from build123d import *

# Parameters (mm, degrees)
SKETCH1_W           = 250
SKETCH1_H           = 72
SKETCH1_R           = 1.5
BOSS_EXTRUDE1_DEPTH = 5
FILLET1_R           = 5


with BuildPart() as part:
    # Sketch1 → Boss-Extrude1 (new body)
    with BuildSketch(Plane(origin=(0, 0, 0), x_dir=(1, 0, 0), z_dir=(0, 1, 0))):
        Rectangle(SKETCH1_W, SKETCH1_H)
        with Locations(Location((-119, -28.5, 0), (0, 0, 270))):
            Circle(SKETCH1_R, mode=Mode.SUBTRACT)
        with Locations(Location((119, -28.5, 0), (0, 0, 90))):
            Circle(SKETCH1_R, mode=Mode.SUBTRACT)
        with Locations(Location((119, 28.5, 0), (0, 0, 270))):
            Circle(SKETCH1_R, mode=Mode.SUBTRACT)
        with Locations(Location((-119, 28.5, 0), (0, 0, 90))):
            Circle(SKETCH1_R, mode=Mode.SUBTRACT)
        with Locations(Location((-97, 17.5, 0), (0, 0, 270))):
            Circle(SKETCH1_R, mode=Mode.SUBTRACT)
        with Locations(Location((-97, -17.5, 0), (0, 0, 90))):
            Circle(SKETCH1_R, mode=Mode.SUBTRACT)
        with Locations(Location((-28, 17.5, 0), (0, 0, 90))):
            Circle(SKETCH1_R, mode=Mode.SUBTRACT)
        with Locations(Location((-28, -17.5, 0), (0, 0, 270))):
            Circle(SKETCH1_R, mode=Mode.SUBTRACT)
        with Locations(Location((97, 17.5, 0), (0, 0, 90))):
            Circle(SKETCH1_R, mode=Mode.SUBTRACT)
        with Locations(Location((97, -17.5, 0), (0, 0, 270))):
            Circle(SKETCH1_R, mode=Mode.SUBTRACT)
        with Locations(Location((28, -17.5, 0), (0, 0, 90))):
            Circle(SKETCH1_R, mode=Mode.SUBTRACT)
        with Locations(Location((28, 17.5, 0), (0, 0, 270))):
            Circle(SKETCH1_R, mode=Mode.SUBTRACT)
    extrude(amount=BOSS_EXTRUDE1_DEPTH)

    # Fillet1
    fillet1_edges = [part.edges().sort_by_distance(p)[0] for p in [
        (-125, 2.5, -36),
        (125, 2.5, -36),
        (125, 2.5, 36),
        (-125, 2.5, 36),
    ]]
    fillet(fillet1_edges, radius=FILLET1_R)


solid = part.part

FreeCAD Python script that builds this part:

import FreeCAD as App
import Part
import Sketcher
Q = App.Units.Quantity


def edges_at(feature, points):
    """Names of the edges that pass closest to the given points."""
    edges = feature.Shape.Edges
    near = lambda p: min(range(len(edges)), key=lambda i: edges[i].distToShape(Part.Vertex(*p))[0])
    return sorted({f"Edge{near(p) + 1}" for p in points})


def add_polygon(sketch, points):
    """Adds a closed chain of lines whose ends are joined by coincident constraints."""
    first, n = sketch.GeometryCount, len(points)
    for a, b in zip(points, points[1:] + points[:1]):
        sketch.addGeometry(Part.LineSegment(App.Vector(*a, 0), App.Vector(*b, 0)), False)
    for i in range(n):
        sketch.addConstraint(Sketcher.Constraint("Coincident", first + i, 2, first + (i + 1) % n, 1))

doc = App.newDocument("Part")
body = doc.addObject("PartDesign::Body", "Body")

# Sketch on XZ plane
sketch1 = body.newObject("Sketcher::SketchObject", "Sketch")
sketch1.AttachmentSupport = (doc.getObject("XZ_Plane"), [""])
sketch1.MapMode = "FlatFace"
add_polygon(sketch1, [(-125, -36), (-125, 36), (125, 36), (125, -36)])  # lines 0-3
sketch1.addGeometry(Part.Circle(App.Vector(-119, 28.5, 0), App.Vector(0, 0, 1), 1.5), False)  # 4
sketch1.addGeometry(Part.Circle(App.Vector(-97, 17.5, 0), App.Vector(0, 0, 1), 1.5), False)  # 5
sketch1.addGeometry(Part.Circle(App.Vector(-28, 17.5, 0), App.Vector(0, 0, 1), 1.5), False)  # 6
sketch1.addGeometry(Part.Circle(App.Vector(28, 17.5, 0), App.Vector(0, 0, 1), 1.5), False)  # 7
sketch1.addGeometry(Part.Circle(App.Vector(119, 28.5, 0), App.Vector(0, 0, 1), 1.5), False)  # 8
sketch1.addGeometry(Part.Circle(App.Vector(97, 17.5, 0), App.Vector(0, 0, 1), 1.5), False)  # 9
sketch1.addGeometry(Part.Circle(App.Vector(-97, -17.5, 0), App.Vector(0, 0, 1), 1.5), False)  # 10
sketch1.addGeometry(Part.Circle(App.Vector(-119, -28.5, 0), App.Vector(0, 0, 1), 1.5), False)  # 11
sketch1.addGeometry(Part.Circle(App.Vector(-28, -17.5, 0), App.Vector(0, 0, 1), 1.5), False)  # 12
sketch1.addGeometry(Part.Circle(App.Vector(28, -17.5, 0), App.Vector(0, 0, 1), 1.5), False)  # 13
sketch1.addGeometry(Part.Circle(App.Vector(97, -17.5, 0), App.Vector(0, 0, 1), 1.5), False)  # 14
sketch1.addGeometry(Part.Circle(App.Vector(119, -28.5, 0), App.Vector(0, 0, 1), 1.5), False)  # 15
sketch1.addConstraint(Sketcher.Constraint("Vertical", 0))
sketch1.addConstraint(Sketcher.Constraint("Horizontal", 1))
sketch1.addConstraint(Sketcher.Constraint("Vertical", 2))
sketch1.addConstraint(Sketcher.Constraint("Horizontal", 3))
sketch1.addConstraint(Sketcher.Constraint("Equal", 4, 5))
sketch1.addConstraint(Sketcher.Constraint("Equal", 5, 6))
sketch1.addConstraint(Sketcher.Constraint("Equal", 6, 7))
sketch1.addConstraint(Sketcher.Constraint("Equal", 7, 8))
sketch1.addConstraint(Sketcher.Constraint("Equal", 8, 9))
sketch1.addConstraint(Sketcher.Constraint("Equal", 9, 10))
sketch1.addConstraint(Sketcher.Constraint("Equal", 10, 11))
sketch1.addConstraint(Sketcher.Constraint("Equal", 11, 12))
sketch1.addConstraint(Sketcher.Constraint("Equal", 12, 13))
sketch1.addConstraint(Sketcher.Constraint("Equal", 13, 14))
sketch1.addConstraint(Sketcher.Constraint("Equal", 14, 15))
sketch1.addConstraint(Sketcher.Constraint("Symmetric", 9, 3, 10, 3, -1, 1))
sketch1.addConstraint(Sketcher.Constraint("Symmetric", 8, 3, 11, 3, -1, 1))
sketch1.addConstraint(Sketcher.Constraint("Symmetric", 7, 3, 12, 3, -1, 1))
sketch1.addConstraint(Sketcher.Constraint("Symmetric", 6, 3, 13, 3, -1, 1))
sketch1.addConstraint(Sketcher.Constraint("Symmetric", 5, 3, 14, 3, -1, 1))
sketch1.addConstraint(Sketcher.Constraint("Symmetric", 4, 3, 15, 3, -1, 1))
sketch1.addConstraint(Sketcher.Constraint("Symmetric", 0, 2, 2, 2, -1, 1))
sketch1.addConstraint(Sketcher.Constraint("Symmetric", 6, 3, 7, 3, -2))
sketch1.addConstraint(Sketcher.Constraint("Symmetric", 4, 3, 8, 3, -2))
sketch1.addConstraint(Sketcher.Constraint("Symmetric", 5, 3, 9, 3, -2))
sketch1.addConstraint(Sketcher.Constraint("Horizontal", 5, 3, 6, 3))
sketch1.addConstraint(Sketcher.Constraint("Diameter", 4, Q("3 mm")))
sketch1.addConstraint(Sketcher.Constraint("DistanceX", 1, 1, 1, 2, Q("250 mm")))
sketch1.addConstraint(Sketcher.Constraint("DistanceY", 0, 1, 0, 2, Q("72 mm")))
sketch1.addConstraint(Sketcher.Constraint("DistanceX", 4, 3, -1, 1, Q("119 mm")))
sketch1.addConstraint(Sketcher.Constraint("DistanceX", 5, 3, -1, 1, Q("97 mm")))
sketch1.addConstraint(Sketcher.Constraint("DistanceX", 6, 3, -1, 1, Q("28 mm")))
sketch1.addConstraint(Sketcher.Constraint("DistanceY", 5, 3, 4, 3, Q("11 mm")))
sketch1.addConstraint(Sketcher.Constraint("DistanceY", 10, 3, 5, 3, Q("35 mm")))
pad1 = body.newObject("PartDesign::Pad", "Pad")
pad1.Profile = sketch1
pad1.Length = 5
pad1.Reversed = True
doc.recompute()

fillet = body.newObject("PartDesign::Fillet", "Fillet")
fillet.Base = (pad1, edges_at(pad1, [
    (-125, 2.5, -36),
    (125, 2.5, -36),
    (125, 2.5, 36),
    (-125, 2.5, 36),
]))
fillet.Radius = 5

doc.recompute()
